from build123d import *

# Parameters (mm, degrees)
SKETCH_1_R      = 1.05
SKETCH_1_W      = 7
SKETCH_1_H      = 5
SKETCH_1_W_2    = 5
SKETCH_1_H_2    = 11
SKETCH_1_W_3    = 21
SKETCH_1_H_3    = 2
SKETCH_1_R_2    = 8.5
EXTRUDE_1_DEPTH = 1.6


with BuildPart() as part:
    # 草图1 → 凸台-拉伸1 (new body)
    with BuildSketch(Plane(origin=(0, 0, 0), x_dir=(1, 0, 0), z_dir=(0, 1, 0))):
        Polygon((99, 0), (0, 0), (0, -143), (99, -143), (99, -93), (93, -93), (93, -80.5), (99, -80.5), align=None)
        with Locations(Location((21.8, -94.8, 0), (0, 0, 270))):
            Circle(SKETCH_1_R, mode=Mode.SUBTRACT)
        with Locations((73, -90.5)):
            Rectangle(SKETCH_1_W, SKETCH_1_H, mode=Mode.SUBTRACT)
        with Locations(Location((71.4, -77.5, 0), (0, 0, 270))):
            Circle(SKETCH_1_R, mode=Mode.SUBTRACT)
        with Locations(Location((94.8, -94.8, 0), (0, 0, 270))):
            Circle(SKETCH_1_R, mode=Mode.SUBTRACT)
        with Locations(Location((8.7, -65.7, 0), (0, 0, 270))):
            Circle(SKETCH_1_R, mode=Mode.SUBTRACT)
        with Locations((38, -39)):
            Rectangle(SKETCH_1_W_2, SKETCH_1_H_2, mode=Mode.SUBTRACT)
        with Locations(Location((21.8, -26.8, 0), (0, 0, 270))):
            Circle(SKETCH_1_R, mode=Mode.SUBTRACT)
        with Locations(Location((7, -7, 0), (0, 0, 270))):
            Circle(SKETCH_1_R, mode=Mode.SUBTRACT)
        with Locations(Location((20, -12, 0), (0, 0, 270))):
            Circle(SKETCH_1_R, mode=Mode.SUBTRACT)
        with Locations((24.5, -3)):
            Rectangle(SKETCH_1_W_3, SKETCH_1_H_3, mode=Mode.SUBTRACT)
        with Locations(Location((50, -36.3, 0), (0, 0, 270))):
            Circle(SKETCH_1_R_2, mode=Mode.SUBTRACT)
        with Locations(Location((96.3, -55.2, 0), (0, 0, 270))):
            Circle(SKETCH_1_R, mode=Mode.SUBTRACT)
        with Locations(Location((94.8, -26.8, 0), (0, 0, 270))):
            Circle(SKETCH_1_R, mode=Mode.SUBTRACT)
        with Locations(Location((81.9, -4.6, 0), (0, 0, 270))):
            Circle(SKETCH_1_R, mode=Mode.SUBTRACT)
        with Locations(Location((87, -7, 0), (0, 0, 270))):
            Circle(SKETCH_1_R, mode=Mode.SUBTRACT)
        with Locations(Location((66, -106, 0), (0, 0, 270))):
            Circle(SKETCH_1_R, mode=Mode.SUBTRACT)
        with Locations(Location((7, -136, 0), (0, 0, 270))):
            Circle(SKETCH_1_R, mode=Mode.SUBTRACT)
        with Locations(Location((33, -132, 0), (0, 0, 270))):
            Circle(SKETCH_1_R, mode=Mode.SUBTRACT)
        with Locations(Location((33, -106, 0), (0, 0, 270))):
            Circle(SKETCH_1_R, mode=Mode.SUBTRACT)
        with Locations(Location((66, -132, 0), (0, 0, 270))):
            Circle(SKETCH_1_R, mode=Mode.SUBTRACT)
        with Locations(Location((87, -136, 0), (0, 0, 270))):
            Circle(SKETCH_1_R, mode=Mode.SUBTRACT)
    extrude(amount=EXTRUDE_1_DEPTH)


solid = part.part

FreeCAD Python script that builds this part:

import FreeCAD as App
import Part
import Sketcher

V = App.Vector

doc = App.newDocument("Part")
params = doc.addObject("Spreadsheet::Sheet", "Params")
for row, (alias, value) in enumerate([
    ("sketch1_diameter", "17 mm"),
    ("sketch1_diameter2", "2.1 mm"),
    ("sketch1_width", "99 mm"),
    ("sketch1_width2", "6 mm"),
    ("sketch1_width3", "7 mm"),
    ("pad1_length", "1.6 mm"),
], start=1):
    params.set(f"A{row}", alias)
    params.set(f"B{row}", "=" + value)
    params.setAlias(f"B{row}", alias)

body = doc.addObject("PartDesign::Body", "Body")

sketch1 = body.newObject("Sketcher::SketchObject", "Sketch")
sketch1.AttachmentSupport = (doc.getObject("XZ_Plane"), [""])
sketch1.MapMode = "FlatFace"
sketch1.addGeometry(Part.LineSegment(V(99, 0, 0), V(0, 0, 0)), False)
sketch1.addGeometry(Part.LineSegment(V(0, 0, 0), V(0, 143, 0)), False)
sketch1.addGeometry(Part.LineSegment(V(0, 143, 0), V(99, 143, 0)), False)
sketch1.addGeometry(Part.LineSegment(V(99, 143, 0), V(99, 93, 0)), False)
sketch1.addGeometry(Part.LineSegment(V(99, 93, 0), V(93, 93, 0)), False)
sketch1.addGeometry(Part.LineSegment(V(93, 93, 0), V(93, 80.5, 0)), False)
sketch1.addGeometry(Part.LineSegment(V(93, 80.5, 0), V(99, 80.5, 0)), False)
sketch1.addGeometry(Part.LineSegment(V(99, 80.5, 0), V(99, 0, 0)), False)
sketch1.addGeometry(Part.Circle(V(7, 136, 0), V(0, 0, 1), 1.1), False)
sketch1.addGeometry(Part.Circle(V(33, 132, 0), V(0, 0, 1), 1.1), False)
sketch1.addGeometry(Part.Circle(V(33, 106, 0), V(0, 0, 1), 1.1), False)
sketch1.addGeometry(Part.Circle(V(21.8, 94.8, 0), V(0, 0, 1), 1.1), False)
sketch1.addGeometry(Part.Circle(V(66, 132, 0), V(0, 0, 1), 1.1), False)
sketch1.addGeometry(Part.Circle(V(66, 106, 0), V(0, 0, 1), 1.1), False)
sketch1.addGeometry(Part.Circle(V(87, 136, 0), V(0, 0, 1), 1.1), False)
sketch1.addGeometry(Part.LineSegment(V(76.5, 93, 0), V(69.5, 93, 0)), False)
sketch1.addGeometry(Part.LineSegment(V(69.5, 93, 0), V(69.5, 88, 0)), False)
sketch1.addGeometry(Part.LineSegment(V(69.5, 88, 0), V(76.5, 88, 0)), False)
sketch1.addGeometry(Part.LineSegment(V(76.5, 88, 0), V(76.5, 93, 0)), False)
sketch1.addGeometry(Part.Circle(V(71.4, 77.5, 0), V(0, 0, 1), 1.1), False)
sketch1.addGeometry(Part.Circle(V(94.8, 94.8, 0), V(0, 0, 1), 1.1), False)
sketch1.addGeometry(Part.Circle(V(8.7, 65.7, 0), V(0, 0, 1), 1.1), False)
sketch1.addGeometry(Part.LineSegment(V(40.5, 44.5, 0), V(35.5, 44.5, 0)), False)
sketch1.addGeometry(Part.LineSegment(V(35.5, 44.5, 0), V(35.5, 33.5, 0)), False)
sketch1.addGeometry(Part.LineSegment(V(35.5, 33.5, 0), V(40.5, 33.5, 0)), False)
sketch1.addGeometry(Part.LineSegment(V(40.5, 33.5, 0), V(40.5, 44.5, 0)), False)
sketch1.addGeometry(Part.Circle(V(50, 36.3, 0), V(0, 0, 1), 8.5), False)
sketch1.addGeometry(Part.Circle(V(21.8, 26.8, 0), V(0, 0, 1), 1.1), False)
sketch1.addGeometry(Part.Circle(V(7, 7, 0), V(0, 0, 1), 1.1), False)
sketch1.addGeometry(Part.Circle(V(20, 12, 0), V(0, 0, 1), 1.1), False)
sketch1.addGeometry(Part.LineSegment(V(35, 4, 0), V(14, 4, 0)), False)
sketch1.addGeometry(Part.LineSegment(V(14, 4, 0), V(14, 2, 0)), False)
sketch1.addGeometry(Part.LineSegment(V(14, 2, 0), V(35, 2, 0)), False)
sketch1.addGeometry(Part.LineSegment(V(35, 2, 0), V(35, 4, 0)), False)
sketch1.addGeometry(Part.Circle(V(96.3, 55.2, 0), V(0, 0, 1), 1.1), False)
sketch1.addGeometry(Part.Circle(V(94.8, 26.8, 0), V(0, 0, 1), 1.1), False)
sketch1.addGeometry(Part.Circle(V(81.9, 4.6, 0), V(0, 0, 1), 1.1), False)
sketch1.addGeometry(Part.Circle(V(87, 7, 0), V(0, 0, 1), 1.1), False)
sketch1.addConstraint(Sketcher.Constraint("Coincident", 0, 2, 1, 1))
sketch1.addConstraint(Sketcher.Constraint("Coincident", 1, 2, 2, 1))
sketch1.addConstraint(Sketcher.Constraint("Coincident", 2, 2, 3, 1))
sketch1.addConstraint(Sketcher.Constraint("Coincident", 3, 2, 4, 1))
sketch1.addConstraint(Sketcher.Constraint("Coincident", 4, 2, 5, 1))
sketch1.addConstraint(Sketcher.Constraint("Coincident", 5, 2, 6, 1))
sketch1.addConstraint(Sketcher.Constraint("Coincident", 6, 2, 7, 1))
sketch1.addConstraint(Sketcher.Constraint("Coincident", 7, 2, 0, 1))
sketch1.addConstraint(Sketcher.Constraint("Coincident", 15, 2, 16, 1))
sketch1.addConstraint(Sketcher.Constraint("Coincident", 16, 2, 17, 1))
sketch1.addConstraint(Sketcher.Constraint("Coincident", 17, 2, 18, 1))
sketch1.addConstraint(Sketcher.Constraint("Coincident", 18, 2, 15, 1))
sketch1.addConstraint(Sketcher.Constraint("Coincident", 22, 2, 23, 1))
sketch1.addConstraint(Sketcher.Constraint("Coincident", 23, 2, 24, 1))
sketch1.addConstraint(Sketcher.Constraint("Coincident", 24, 2, 25, 1))
sketch1.addConstraint(Sketcher.Constraint("Coincident", 25, 2, 22, 1))
sketch1.addConstraint(Sketcher.Constraint("Coincident", 30, 2, 31, 1))
sketch1.addConstraint(Sketcher.Constraint("Coincident", 31, 2, 32, 1))
sketch1.addConstraint(Sketcher.Constraint("Coincident", 32, 2, 33, 1))
sketch1.addConstraint(Sketcher.Constraint("Coincident", 33, 2, 30, 1))
sketch1.addConstraint(Sketcher.Constraint("Horizontal", 0))
sketch1.addConstraint(Sketcher.Constraint("Vertical", 1))
sketch1.addConstraint(Sketcher.Constraint("Horizontal", 2))
sketch1.addConstraint(Sketcher.Constraint("Vertical", 3))
sketch1.addConstraint(Sketcher.Constraint("Horizontal", 4))
sketch1.addConstraint(Sketcher.Constraint("Vertical", 5))
sketch1.addConstraint(Sketcher.Constraint("Horizontal", 6))
sketch1.addConstraint(Sketcher.Constraint("Vertical", 7))
sketch1.addConstraint(Sketcher.Constraint("Horizontal", 15))
sketch1.addConstraint(Sketcher.Constraint("Vertical", 16))
sketch1.addConstraint(Sketcher.Constraint("Horizontal", 17))
sketch1.addConstraint(Sketcher.Constraint("Vertical", 18))
sketch1.addConstraint(Sketcher.Constraint("Horizontal", 22))
sketch1.addConstraint(Sketcher.Constraint("Vertical", 23))
sketch1.addConstraint(Sketcher.Constraint("Horizontal", 24))
sketch1.addConstraint(Sketcher.Constraint("Vertical", 25))
sketch1.addConstraint(Sketcher.Constraint("Horizontal", 30))
sketch1.addConstraint(Sketcher.Constraint("Vertical", 31))
sketch1.addConstraint(Sketcher.Constraint("Horizontal", 32))
sketch1.addConstraint(Sketcher.Constraint("Vertical", 33))
sketch1.addConstraint(Sketcher.Constraint("Coincident", 0, 2, -1, 1))
sketch1.addConstraint(Sketcher.Constraint("Equal", 8, 9))
sketch1.addConstraint(Sketcher.Constraint("Equal", 9, 10))
sketch1.addConstraint(Sketcher.Constraint("Equal", 10, 11))
sketch1.addConstraint(Sketcher.Constraint("Equal", 11, 12))
sketch1.addConstraint(Sketcher.Constraint("Equal", 12, 13))
sketch1.addConstraint(Sketcher.Constraint("Equal", 13, 14))
sketch1.addConstraint(Sketcher.Constraint("Equal", 14, 19))
sketch1.addConstraint(Sketcher.Constraint("Equal", 19, 20))
sketch1.addConstraint(Sketcher.Constraint("Equal", 20, 21))
sketch1.addConstraint(Sketcher.Constraint("Equal", 21, 27))
sketch1.addConstraint(Sketcher.Constraint("Equal", 27, 28))
sketch1.addConstraint(Sketcher.Constraint("Equal", 28, 29))
sketch1.addConstraint(Sketcher.Constraint("Equal", 29, 34))
sketch1.addConstraint(Sketcher.Constraint("Equal", 34, 35))
sketch1.addConstraint(Sketcher.Constraint("Equal", 35, 36))
sketch1.addConstraint(Sketcher.Constraint("Equal", 36, 37))
sketch1.addConstraint(Sketcher.Constraint("Horizontal", 9, 3, 12, 3))
sketch1.addConstraint(Sketcher.Constraint("Horizontal", 10, 3, 13, 3))
sketch1.addConstraint(Sketcher.Constraint("Horizontal", 8, 3, 14, 3))
sketch1.addConstraint(Sketcher.Constraint("Horizontal", 11, 3, 20, 3))
sketch1.addConstraint(Sketcher.Constraint("Horizontal", 27, 3, 35, 3))
sketch1.addConstraint(Sketcher.Constraint("Horizontal", 28, 3, 37, 3))
sketch1.addConstraint(Sketcher.Constraint("Horizontal", 4, 2, 15, 2))
sketch1.addConstraint(Sketcher.Constraint("Vertical", 9, 3, 10, 3))
sketch1.addConstraint(Sketcher.Constraint("Vertical", 12, 3, 13, 3))
sketch1.addConstraint(Sketcher.Constraint("Vertical", 11, 3, 27, 3))
sketch1.addConstraint(Sketcher.Constraint("Vertical", 8, 3, 28, 3))
sketch1.addConstraint(Sketcher.Constraint("Vertical", 20, 3, 35, 3))
sketch1.addConstraint(Sketcher.Constraint("Vertical", 14, 3, 37, 3))
sketch1.addConstraint(Sketcher.Constraint("Vertical", 3, 2, 6, 2))
sketch1.addConstraint(Sketcher.Constraint("Equal", 24, 16))
sketch1.addConstraint(Sketcher.Constraint("Diameter", 26, 17.0))
sketch1.addConstraint(Sketcher.Constraint("Diameter", 8, 2.1))
sketch1.addConstraint(Sketcher.Constraint("DistanceX", 0, 2, 0, 1, 99.0))
sketch1.addConstraint(Sketcher.Constraint("DistanceX", 4, 2, 4, 1, 6.0))
sketch1.addConstraint(Sketcher.Constraint("DistanceX", 15, 2, 15, 1, 7.0))
sketch1.addConstraint(Sketcher.Constraint("DistanceX", 22, 2, 22, 1, 5.0))
sketch1.addConstraint(Sketcher.Constraint("DistanceX", 30, 2, 30, 1, 21.0))
sketch1.addConstraint(Sketcher.Constraint("DistanceY", 1, 1, 1, 2, 143.0))
sketch1.addConstraint(Sketcher.Constraint("DistanceY", 3, 2, 3, 1, 50.0))
sketch1.addConstraint(Sketcher.Constraint("DistanceY", 23, 2, 23, 1, 11.0))
sketch1.addConstraint(Sketcher.Constraint("DistanceY", 31, 2, 31, 1, 2.0))
sketch1.addConstraint(Sketcher.Constraint("DistanceY", 5, 2, 5, 1, 12.5))
sketch1.addConstraint(Sketcher.Constraint("DistanceX", -1, 1, 8, 3, 7.0))
sketch1.addConstraint(Sketcher.Constraint("DistanceY", -1, 1, 8, 3, 136.0))
sketch1.addConstraint(Sketcher.Constraint("DistanceX", -1, 1, 9, 3, 33.0))
sketch1.addConstraint(Sketcher.Constraint("DistanceY", -1, 1, 9, 3, 132.0))
sketch1.addConstraint(Sketcher.Constraint("DistanceY", -1, 1, 10, 3, 106.0))
sketch1.addConstraint(Sketcher.Constraint("DistanceX", -1, 1, 12, 3, 66.0))
sketch1.addConstraint(Sketcher.Constraint("DistanceX", -1, 1, 14, 3, 87.0))
sketch1.addConstraint(Sketcher.Constraint("DistanceX", -1, 1, 26, 3, 50.0))
sketch1.addConstraint(Sketcher.Constraint("DistanceY", -1, 1, 28, 3, 7.0))
sketch1.addConstraint(Sketcher.Constraint("DistanceX", -1, 1, 29, 3, 20.0))
sketch1.addConstraint(Sketcher.Constraint("DistanceY", -1, 1, 29, 3, 12.0))
sketch1.addConstraint(Sketcher.Constraint("DistanceX", -1, 1, 30, 2, 14.0))
sketch1.addConstraint(Sketcher.Constraint("DistanceY", -1, 1, 30, 2, 4.0))
sketch1.addConstraint(Sketcher.Constraint("DistanceY", 27, 3, 11, 3, 68.0))
sketch1.addConstraint(Sketcher.Constraint("DistanceX", 27, 3, 35, 3, 73.0))
sketch1.addConstraint(Sketcher.Constraint("DistanceY", 19, 3, 5, 2, 3.0))
sketch1.addConstraint(Sketcher.Constraint("DistanceX", -1, 1, 11, 3, 21.8))
sketch1.addConstraint(Sketcher.Constraint("DistanceY", -1, 1, 11, 3, 94.8))
sketch1.addConstraint(Sketcher.Constraint("DistanceX", -1, 1, 19, 3, 71.4))
sketch1.addConstraint(Sketcher.Constraint("DistanceX", -1, 1, 21, 3, 8.7))
sketch1.addConstraint(Sketcher.Constraint("DistanceY", -1, 1, 21, 3, 65.7))
sketch1.addConstraint(Sketcher.Constraint("DistanceY", -1, 1, 26, 3, 36.3))
sketch1.addConstraint(Sketcher.Constraint("DistanceX", -1, 1, 34, 3, 96.3))
sketch1.addConstraint(Sketcher.Constraint("DistanceY", -1, 1, 34, 3, 55.2))
sketch1.addConstraint(Sketcher.Constraint("DistanceX", -1, 1, 36, 3, 81.9))
sketch1.addConstraint(Sketcher.Constraint("DistanceY", -1, 1, 36, 3, 4.6))
sketch1.addConstraint(Sketcher.Constraint("DistanceX", -1, 1, 15, 2, 69.5))
sketch1.addConstraint(Sketcher.Constraint("DistanceX", -1, 1, 22, 2, 35.5))
sketch1.addConstraint(Sketcher.Constraint("DistanceY", -1, 1, 22, 2, 44.5))
sketch1.setExpression("Constraints[72]", "Params.sketch1_diameter")
sketch1.setExpression("Constraints[73]", "Params.sketch1_diameter2")
sketch1.setExpression("Constraints[74]", "Params.sketch1_width")
sketch1.setExpression("Constraints[75]", "Params.sketch1_width2")
sketch1.setExpression("Constraints[76]", "Params.sketch1_width3")
pad1 = body.newObject("PartDesign::Pad", "Pad")
pad1.Profile = sketch1
pad1.setExpression("Length", "Params.pad1_length")
pad1.Reversed = True

doc.recompute()
